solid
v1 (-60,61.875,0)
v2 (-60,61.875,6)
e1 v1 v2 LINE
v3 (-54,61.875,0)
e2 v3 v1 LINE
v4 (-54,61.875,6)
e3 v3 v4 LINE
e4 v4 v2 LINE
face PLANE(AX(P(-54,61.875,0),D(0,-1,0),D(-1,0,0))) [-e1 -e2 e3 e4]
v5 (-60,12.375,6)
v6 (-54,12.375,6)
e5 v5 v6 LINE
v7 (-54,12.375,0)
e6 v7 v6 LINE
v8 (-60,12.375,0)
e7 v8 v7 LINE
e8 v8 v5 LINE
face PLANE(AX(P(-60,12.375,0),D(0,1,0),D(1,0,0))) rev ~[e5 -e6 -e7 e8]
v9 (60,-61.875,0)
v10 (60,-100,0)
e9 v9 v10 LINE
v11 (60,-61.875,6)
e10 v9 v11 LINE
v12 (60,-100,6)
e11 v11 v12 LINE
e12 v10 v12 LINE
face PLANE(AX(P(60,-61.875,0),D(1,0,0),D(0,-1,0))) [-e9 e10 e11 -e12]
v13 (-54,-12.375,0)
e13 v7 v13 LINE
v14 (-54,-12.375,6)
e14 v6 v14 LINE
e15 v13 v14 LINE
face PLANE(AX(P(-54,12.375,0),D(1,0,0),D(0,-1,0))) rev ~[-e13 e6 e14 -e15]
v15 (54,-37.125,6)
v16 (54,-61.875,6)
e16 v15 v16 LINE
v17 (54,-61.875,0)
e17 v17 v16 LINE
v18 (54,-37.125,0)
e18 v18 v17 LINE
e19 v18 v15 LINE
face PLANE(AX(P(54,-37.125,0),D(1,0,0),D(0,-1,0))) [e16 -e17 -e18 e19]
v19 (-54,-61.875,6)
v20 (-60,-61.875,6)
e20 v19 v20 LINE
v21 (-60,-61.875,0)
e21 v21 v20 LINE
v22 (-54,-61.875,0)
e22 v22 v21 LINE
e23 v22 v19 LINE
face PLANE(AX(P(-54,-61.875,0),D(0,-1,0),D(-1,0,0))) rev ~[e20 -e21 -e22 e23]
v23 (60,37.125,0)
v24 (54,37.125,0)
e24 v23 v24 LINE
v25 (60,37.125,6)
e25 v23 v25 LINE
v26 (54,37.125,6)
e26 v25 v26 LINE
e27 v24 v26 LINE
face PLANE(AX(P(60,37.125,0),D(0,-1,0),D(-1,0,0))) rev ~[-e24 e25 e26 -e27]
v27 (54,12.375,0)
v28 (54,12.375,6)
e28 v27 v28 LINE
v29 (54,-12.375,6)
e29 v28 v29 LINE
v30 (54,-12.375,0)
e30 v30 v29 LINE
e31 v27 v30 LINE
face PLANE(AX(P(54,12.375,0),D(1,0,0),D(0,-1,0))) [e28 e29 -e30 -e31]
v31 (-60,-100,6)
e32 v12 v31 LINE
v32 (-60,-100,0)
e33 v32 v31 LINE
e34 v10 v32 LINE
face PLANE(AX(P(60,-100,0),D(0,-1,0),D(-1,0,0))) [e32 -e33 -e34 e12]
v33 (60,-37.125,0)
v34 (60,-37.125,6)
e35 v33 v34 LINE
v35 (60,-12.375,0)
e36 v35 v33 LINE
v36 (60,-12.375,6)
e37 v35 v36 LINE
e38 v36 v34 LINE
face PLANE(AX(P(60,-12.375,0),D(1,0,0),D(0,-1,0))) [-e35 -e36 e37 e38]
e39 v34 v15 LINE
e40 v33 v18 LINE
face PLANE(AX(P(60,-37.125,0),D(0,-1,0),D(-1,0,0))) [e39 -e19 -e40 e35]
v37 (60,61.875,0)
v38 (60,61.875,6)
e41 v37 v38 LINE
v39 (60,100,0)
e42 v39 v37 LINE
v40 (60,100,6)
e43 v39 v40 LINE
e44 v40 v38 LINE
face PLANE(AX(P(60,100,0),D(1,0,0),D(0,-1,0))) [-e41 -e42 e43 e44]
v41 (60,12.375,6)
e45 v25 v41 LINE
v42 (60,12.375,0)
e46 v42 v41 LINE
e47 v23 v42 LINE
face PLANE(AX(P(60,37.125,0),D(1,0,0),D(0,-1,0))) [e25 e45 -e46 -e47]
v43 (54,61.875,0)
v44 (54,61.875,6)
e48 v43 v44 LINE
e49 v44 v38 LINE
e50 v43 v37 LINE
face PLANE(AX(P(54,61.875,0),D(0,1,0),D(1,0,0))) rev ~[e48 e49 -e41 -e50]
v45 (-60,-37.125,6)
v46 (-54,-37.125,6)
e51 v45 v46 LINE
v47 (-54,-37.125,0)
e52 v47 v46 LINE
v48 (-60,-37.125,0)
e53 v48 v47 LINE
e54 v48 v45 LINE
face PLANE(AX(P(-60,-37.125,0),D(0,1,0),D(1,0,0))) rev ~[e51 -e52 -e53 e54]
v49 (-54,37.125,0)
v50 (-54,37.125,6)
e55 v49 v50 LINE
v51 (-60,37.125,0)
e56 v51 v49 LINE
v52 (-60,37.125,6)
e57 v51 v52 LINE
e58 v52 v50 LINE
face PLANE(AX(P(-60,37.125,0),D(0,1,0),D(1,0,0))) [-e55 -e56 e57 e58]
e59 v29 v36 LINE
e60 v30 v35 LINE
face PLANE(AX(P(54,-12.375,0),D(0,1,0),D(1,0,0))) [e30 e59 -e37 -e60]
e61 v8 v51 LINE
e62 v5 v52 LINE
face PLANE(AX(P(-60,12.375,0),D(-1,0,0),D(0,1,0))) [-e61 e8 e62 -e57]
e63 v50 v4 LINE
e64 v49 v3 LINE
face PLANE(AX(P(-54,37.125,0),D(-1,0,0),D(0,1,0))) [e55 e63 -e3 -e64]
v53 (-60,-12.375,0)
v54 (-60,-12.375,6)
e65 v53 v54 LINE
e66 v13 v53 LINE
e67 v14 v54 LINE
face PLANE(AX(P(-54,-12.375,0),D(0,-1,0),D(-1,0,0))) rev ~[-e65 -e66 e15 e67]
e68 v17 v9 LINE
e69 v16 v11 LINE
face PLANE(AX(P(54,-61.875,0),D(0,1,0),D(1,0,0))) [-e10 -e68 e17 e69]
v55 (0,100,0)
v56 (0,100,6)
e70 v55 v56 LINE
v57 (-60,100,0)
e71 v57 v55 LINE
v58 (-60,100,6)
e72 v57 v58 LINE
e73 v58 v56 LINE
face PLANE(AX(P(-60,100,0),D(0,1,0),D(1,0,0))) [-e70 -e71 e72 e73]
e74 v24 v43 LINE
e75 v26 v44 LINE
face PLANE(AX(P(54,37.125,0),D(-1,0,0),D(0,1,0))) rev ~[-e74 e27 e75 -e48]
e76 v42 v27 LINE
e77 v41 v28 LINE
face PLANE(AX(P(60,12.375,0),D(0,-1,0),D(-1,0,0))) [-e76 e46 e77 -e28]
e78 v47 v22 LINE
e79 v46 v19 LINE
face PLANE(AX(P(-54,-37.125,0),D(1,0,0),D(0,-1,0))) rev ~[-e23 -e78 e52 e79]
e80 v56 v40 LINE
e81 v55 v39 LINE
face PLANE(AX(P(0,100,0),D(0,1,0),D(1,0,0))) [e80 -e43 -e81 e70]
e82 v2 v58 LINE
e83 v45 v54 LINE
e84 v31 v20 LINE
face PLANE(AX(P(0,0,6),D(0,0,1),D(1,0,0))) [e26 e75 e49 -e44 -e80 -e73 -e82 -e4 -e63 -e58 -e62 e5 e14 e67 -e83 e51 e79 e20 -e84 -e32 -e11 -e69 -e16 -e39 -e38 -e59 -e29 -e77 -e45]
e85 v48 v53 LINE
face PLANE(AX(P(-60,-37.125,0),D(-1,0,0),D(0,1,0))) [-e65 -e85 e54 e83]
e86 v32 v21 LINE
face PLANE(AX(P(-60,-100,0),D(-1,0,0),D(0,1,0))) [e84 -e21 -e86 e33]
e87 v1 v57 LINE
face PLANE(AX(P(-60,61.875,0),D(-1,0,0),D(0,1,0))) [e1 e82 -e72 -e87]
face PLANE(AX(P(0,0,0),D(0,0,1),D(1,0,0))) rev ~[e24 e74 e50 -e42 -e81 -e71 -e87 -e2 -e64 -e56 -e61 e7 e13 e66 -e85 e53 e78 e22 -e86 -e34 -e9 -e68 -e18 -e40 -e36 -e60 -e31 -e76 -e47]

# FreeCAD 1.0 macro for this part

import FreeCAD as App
import Part
import Sketcher

V = App.Vector


def add_polygon(sketch, points):
    """Adds a closed chain of lines whose ends are joined by coincident constraints."""
    first, n = sketch.GeometryCount, len(points)
    for a, b in zip(points, points[1:] + points[:1]):
        sketch.addGeometry(Part.LineSegment(App.Vector(*a, 0), App.Vector(*b, 0)), False)
    for i in range(n):
        sketch.addConstraint(Sketcher.Constraint("Coincident", first + i, 2, first + (i + 1) % n, 1))

doc = App.newDocument("Part")
body = doc.addObject("PartDesign::Body", "Body")

sketch1 = body.newObject("Sketcher::SketchObject", "Sketch")
sketch1.AttachmentSupport = (doc.getObject("XY_Plane"), [""])
sketch1.MapMode = "FlatFace"
add_polygon(sketch1, [(-60, -100), (60, -100), (60, -62), (54, -62), (54, -37), (60, -37), (60, -12), (54, -12), (54, 12), (60, 12), (60, 37), (54, 37), (54, 62), (60, 62), (60, 100), (-60, 100), (-60, 62), (-54, 62), (-54, 37), (-60, 37), (-60, 12), (-54, 12), (-54, -12), (-60, -12), (-60, -37), (-54, -37), (-54, -62), (-60, -62)])
sketch1.addConstraint(Sketcher.Constraint("Horizontal", 0))
sketch1.addConstraint(Sketcher.Constraint("Vertical", 1))
sketch1.addConstraint(Sketcher.Constraint("Horizontal", 2))
sketch1.addConstraint(Sketcher.Constraint("Vertical", 3))
sketch1.addConstraint(Sketcher.Constraint("Horizontal", 4))
sketch1.addConstraint(Sketcher.Constraint("Vertical", 5))
sketch1.addConstraint(Sketcher.Constraint("Horizontal", 6))
sketch1.addConstraint(Sketcher.Constraint("Vertical", 7))
sketch1.addConstraint(Sketcher.Constraint("Horizontal", 8))
sketch1.addConstraint(Sketcher.Constraint("Vertical", 9))
sketch1.addConstraint(Sketcher.Constraint("Horizontal", 10))
sketch1.addConstraint(Sketcher.Constraint("Vertical", 11))
sketch1.addConstraint(Sketcher.Constraint("Horizontal", 12))
sketch1.addConstraint(Sketcher.Constraint("Vertical", 13))
sketch1.addConstraint(Sketcher.Constraint("Horizontal", 14))
sketch1.addConstraint(Sketcher.Constraint("Vertical", 15))
sketch1.addConstraint(Sketcher.Constraint("Horizontal", 16))
sketch1.addConstraint(Sketcher.Constraint("Vertical", 17))
sketch1.addConstraint(Sketcher.Constraint("Horizontal", 18))
sketch1.addConstraint(Sketcher.Constraint("Vertical", 19))
sketch1.addConstraint(Sketcher.Constraint("Horizontal", 20))
sketch1.addConstraint(Sketcher.Constraint("Vertical", 21))
sketch1.addConstraint(Sketcher.Constraint("Horizontal", 22))
sketch1.addConstraint(Sketcher.Constraint("Vertical", 23))
sketch1.addConstraint(Sketcher.Constraint("Horizontal", 24))
sketch1.addConstraint(Sketcher.Constraint("Vertical", 25))
sketch1.addConstraint(Sketcher.Constraint("Horizontal", 26))
sketch1.addConstraint(Sketcher.Constraint("Vertical", 27))
sketch1.addConstraint(Sketcher.Constraint("Symmetric", 0, 2, 14, 2, -1, 1))
sketch1.addConstraint(Sketcher.Constraint("Symmetric", 2, 2, 16, 2, -1, 1))
sketch1.addConstraint(Sketcher.Constraint("Symmetric", 4, 2, 18, 2, -1, 1))
sketch1.addConstraint(Sketcher.Constraint("Symmetric", 6, 2, 20, 2, -1, 1))
sketch1.addConstraint(Sketcher.Constraint("Symmetric", 8, 2, 22, 2, -1, 1))
sketch1.addConstraint(Sketcher.Constraint("Symmetric", 10, 2, 24, 2, -1, 1))
sketch1.addConstraint(Sketcher.Constraint("Symmetric", 12, 2, 26, 2, -1, 1))
sketch1.addConstraint(Sketcher.Constraint("Symmetric", 12, 2, 15, 2, -2))
sketch1.addConstraint(Sketcher.Constraint("Symmetric", 10, 2, 17, 2, -2))
sketch1.addConstraint(Sketcher.Constraint("Symmetric", 8, 2, 19, 2, -2))
sketch1.addConstraint(Sketcher.Constraint("Vertical", 1, 2, 4, 2))
sketch1.addConstraint(Sketcher.Constraint("Vertical", 3, 2, 6, 2))
sketch1.addConstraint(Sketcher.Constraint("Equal", 3, 5))
sketch1.addConstraint(Sketcher.Constraint("Equal", 5, 7))
sketch1.addConstraint(Sketcher.Constraint("DistanceX", 0, 1, 0, 2, 120.0))
sketch1.addConstraint(Sketcher.Constraint("DistanceX", 2, 2, 2, 1, 6.0))
sketch1.addConstraint(Sketcher.Constraint("DistanceY", 3, 1, 3, 2, 24.75))
sketch1.addConstraint(Sketcher.Constraint("DistanceY", 0, 2, -1, 1, 100.0))
pad1 = body.newObject("PartDesign::Pad", "Pad")
pad1.Profile = sketch1
pad1.Length = 6

doc.recompute()
